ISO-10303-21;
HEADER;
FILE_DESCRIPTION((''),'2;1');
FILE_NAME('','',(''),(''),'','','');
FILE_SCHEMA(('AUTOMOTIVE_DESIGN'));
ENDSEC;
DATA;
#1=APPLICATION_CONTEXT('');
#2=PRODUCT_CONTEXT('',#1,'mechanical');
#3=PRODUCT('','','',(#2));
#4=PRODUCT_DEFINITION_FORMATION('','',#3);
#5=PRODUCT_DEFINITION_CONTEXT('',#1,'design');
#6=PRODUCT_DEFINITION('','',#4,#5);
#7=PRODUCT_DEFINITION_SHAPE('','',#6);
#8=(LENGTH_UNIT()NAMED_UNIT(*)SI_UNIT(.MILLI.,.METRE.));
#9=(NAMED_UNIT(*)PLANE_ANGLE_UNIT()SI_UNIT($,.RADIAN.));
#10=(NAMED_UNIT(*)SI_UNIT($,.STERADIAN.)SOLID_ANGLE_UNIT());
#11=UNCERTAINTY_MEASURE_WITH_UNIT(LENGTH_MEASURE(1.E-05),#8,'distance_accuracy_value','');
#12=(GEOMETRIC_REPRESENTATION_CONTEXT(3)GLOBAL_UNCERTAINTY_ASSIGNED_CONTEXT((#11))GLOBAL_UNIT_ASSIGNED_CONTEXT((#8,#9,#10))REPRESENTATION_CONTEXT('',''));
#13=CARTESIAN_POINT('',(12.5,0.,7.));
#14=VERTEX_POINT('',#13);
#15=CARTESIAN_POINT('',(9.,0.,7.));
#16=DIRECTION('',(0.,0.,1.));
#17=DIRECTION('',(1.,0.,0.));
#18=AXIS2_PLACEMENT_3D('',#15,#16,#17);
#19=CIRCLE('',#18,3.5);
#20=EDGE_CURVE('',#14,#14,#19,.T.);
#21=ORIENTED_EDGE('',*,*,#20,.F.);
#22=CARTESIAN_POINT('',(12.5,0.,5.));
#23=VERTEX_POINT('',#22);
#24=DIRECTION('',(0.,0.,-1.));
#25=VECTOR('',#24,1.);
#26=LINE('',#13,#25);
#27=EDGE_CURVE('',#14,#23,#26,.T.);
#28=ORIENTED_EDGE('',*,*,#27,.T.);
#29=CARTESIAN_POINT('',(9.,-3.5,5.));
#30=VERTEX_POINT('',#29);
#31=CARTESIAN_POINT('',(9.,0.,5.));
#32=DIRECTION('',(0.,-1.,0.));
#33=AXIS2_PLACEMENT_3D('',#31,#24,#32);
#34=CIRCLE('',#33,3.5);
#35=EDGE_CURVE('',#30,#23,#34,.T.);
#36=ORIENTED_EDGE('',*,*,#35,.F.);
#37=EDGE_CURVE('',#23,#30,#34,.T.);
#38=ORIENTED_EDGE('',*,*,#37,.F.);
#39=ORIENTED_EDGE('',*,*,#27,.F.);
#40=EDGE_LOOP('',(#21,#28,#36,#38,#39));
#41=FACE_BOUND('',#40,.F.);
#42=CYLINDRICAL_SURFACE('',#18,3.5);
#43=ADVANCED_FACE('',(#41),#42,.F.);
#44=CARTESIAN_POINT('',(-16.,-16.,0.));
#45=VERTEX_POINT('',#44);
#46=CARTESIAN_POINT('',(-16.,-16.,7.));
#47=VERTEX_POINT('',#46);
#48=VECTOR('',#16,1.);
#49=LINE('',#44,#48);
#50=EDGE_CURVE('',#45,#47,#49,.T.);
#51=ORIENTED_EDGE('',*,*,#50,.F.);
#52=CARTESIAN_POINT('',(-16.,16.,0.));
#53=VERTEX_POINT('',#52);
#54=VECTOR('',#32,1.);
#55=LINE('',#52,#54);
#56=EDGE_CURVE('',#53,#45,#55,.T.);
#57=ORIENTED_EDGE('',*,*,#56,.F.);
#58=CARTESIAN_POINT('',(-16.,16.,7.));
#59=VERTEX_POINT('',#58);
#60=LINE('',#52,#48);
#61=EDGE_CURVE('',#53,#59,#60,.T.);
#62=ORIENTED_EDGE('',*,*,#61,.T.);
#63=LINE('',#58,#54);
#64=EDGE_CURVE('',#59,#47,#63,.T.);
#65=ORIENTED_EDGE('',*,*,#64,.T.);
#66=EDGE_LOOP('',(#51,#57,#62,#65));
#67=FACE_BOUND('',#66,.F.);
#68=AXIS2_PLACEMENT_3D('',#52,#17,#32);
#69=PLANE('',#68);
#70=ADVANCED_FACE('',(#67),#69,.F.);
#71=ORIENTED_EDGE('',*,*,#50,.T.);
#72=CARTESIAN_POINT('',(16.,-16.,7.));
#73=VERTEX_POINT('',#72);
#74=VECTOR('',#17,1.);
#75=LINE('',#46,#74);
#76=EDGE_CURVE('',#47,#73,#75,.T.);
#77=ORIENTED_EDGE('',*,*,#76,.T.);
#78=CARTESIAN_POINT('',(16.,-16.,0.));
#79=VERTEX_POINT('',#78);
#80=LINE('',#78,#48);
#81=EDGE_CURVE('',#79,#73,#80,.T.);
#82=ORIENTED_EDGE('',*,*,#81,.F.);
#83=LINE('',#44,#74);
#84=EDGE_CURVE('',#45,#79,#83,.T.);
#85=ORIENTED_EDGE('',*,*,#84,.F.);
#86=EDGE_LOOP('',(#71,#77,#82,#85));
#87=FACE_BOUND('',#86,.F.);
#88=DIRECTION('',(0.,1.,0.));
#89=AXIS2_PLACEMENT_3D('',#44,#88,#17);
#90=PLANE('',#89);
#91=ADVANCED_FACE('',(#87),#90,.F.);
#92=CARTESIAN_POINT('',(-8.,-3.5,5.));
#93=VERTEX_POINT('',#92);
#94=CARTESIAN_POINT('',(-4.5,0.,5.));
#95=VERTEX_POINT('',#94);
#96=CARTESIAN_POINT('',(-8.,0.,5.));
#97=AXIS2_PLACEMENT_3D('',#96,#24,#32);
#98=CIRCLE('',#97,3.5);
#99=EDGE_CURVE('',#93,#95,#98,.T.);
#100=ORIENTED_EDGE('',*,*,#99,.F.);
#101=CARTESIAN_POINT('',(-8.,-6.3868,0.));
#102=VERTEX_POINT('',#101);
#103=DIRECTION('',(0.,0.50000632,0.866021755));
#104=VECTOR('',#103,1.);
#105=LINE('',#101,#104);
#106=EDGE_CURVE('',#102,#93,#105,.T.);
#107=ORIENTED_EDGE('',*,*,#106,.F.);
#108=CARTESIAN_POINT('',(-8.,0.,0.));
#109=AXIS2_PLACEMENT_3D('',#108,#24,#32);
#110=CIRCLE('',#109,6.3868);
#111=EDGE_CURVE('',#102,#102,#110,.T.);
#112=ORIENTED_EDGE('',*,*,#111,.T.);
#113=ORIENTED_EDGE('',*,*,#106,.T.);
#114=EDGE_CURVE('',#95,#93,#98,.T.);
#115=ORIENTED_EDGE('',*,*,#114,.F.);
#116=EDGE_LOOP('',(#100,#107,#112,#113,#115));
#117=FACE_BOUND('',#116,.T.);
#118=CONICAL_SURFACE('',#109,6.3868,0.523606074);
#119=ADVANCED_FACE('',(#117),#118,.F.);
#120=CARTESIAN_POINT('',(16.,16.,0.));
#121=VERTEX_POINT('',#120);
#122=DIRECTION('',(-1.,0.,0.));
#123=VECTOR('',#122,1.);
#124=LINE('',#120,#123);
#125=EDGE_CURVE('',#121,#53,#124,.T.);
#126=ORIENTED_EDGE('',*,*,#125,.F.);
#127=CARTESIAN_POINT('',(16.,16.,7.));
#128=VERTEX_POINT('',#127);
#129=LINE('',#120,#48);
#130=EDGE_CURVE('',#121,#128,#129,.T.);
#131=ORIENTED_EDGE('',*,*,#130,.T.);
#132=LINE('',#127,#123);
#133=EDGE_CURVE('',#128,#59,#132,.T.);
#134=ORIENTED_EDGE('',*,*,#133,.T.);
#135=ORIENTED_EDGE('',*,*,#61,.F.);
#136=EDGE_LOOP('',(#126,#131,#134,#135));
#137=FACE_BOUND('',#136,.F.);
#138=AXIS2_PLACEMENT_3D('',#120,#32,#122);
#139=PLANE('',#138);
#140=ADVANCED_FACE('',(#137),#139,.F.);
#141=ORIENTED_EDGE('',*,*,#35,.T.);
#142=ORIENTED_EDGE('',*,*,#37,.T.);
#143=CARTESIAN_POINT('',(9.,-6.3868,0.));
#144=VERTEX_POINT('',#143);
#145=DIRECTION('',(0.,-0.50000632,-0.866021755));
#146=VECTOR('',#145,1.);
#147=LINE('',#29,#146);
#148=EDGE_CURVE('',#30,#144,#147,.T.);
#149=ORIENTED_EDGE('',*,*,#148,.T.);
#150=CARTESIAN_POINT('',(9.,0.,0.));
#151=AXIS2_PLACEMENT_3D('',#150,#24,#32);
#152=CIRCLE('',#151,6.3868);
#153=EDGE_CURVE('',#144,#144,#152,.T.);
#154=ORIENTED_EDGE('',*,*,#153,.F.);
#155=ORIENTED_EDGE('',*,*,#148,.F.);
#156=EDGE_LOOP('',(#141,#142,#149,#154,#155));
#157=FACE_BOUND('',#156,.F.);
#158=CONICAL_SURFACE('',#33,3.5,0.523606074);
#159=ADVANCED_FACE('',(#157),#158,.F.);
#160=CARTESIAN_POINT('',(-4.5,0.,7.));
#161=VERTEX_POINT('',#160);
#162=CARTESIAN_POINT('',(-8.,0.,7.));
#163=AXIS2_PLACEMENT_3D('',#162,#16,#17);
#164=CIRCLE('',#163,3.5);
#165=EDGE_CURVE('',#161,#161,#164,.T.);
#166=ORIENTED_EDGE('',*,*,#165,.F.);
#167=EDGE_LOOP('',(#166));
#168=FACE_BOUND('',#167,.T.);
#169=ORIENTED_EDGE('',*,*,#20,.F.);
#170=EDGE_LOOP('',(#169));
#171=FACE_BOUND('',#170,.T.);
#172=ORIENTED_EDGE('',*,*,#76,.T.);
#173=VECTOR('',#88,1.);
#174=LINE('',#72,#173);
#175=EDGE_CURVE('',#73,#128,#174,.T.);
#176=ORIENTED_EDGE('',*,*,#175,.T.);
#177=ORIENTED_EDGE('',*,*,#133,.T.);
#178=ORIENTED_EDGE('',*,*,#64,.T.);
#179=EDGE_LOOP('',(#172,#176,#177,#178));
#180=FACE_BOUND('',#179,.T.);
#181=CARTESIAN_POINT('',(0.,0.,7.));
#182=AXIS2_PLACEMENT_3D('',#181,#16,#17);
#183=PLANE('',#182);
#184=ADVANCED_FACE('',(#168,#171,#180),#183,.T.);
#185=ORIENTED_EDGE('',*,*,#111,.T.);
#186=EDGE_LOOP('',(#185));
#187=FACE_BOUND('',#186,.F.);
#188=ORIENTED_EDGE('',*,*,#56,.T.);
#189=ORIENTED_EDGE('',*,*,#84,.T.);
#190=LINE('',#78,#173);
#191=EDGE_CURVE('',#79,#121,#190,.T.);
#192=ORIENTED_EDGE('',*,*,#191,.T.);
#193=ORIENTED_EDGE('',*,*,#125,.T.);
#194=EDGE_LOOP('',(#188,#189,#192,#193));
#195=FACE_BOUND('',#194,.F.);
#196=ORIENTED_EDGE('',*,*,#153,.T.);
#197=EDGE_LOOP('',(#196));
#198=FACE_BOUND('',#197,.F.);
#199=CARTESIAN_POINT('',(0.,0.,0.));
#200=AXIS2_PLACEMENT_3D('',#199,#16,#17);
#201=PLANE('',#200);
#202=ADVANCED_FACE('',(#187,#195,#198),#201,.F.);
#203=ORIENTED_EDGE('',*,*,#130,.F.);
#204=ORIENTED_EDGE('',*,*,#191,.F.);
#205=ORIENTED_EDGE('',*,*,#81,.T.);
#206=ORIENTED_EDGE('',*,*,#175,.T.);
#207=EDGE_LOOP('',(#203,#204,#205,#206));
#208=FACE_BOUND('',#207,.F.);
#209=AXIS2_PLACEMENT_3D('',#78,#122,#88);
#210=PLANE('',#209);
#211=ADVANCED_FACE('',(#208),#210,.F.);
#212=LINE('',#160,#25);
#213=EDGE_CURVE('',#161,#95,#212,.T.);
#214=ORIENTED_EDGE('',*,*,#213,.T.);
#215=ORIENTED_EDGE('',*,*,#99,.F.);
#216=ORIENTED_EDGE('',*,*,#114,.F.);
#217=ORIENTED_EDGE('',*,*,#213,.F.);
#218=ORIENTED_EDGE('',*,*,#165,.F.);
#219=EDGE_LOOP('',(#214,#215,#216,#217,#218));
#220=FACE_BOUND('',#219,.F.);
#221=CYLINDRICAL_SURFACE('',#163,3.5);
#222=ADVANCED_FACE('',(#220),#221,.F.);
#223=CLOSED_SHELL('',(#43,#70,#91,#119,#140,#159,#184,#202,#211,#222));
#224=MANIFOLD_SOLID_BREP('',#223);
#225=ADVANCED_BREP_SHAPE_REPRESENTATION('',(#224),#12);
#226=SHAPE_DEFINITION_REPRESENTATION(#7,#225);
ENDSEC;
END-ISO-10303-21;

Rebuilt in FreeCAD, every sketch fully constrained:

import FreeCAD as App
import Part
import Sketcher
from FreeCAD import Vector
Q = App.Units.Quantity

doc = App.newDocument("Part")
params = doc.addObject("Spreadsheet::Sheet", "Params")
for row, (alias, value) in enumerate([
    ("sketch1_width", "32 mm"),
    ("pad1_length", "7 mm"),
    ("sketch2_diameter", "7 mm"),
    ("pocket1_length", "7 mm"),
    ("sketch3_height", "5 mm"),
    ("groove_angle", "360 deg"),
    ("sketch4_height", "5 mm"),
    ("groove2_angle", "360 deg"),
], start=1):
    params.set(f"A{row}", alias)
    params.set(f"B{row}", "=" + value)
    params.setAlias(f"B{row}", alias)

body = doc.addObject("PartDesign::Body", "Body")

sketch1 = body.newObject("Sketcher::SketchObject", "Sketch")
sketch1.AttachmentSupport = (doc.getObject("XY_Plane"), [""])
sketch1.MapMode = "FlatFace"
sketch1.addGeometry(Part.LineSegment(Vector(-16, 16, 0), Vector(-16, -16, 0)), False)
sketch1.addGeometry(Part.LineSegment(Vector(-16, -16, 0), Vector(16, -16, 0)), False)
sketch1.addGeometry(Part.LineSegment(Vector(16, -16, 0), Vector(16, 16, 0)), False)
sketch1.addGeometry(Part.LineSegment(Vector(16, 16, 0), Vector(-16, 16, 0)), False)
sketch1.addConstraint(Sketcher.Constraint("Coincident", 0, 2, 1, 1))
sketch1.addConstraint(Sketcher.Constraint("Coincident", 1, 2, 2, 1))
sketch1.addConstraint(Sketcher.Constraint("Coincident", 2, 2, 3, 1))
sketch1.addConstraint(Sketcher.Constraint("Coincident", 3, 2, 0, 1))
sketch1.addConstraint(Sketcher.Constraint("Vertical", 0))
sketch1.addConstraint(Sketcher.Constraint("Horizontal", 1))
sketch1.addConstraint(Sketcher.Constraint("Vertical", 2))
sketch1.addConstraint(Sketcher.Constraint("Horizontal", 3))
sketch1.addConstraint(Sketcher.Constraint("Symmetric", 0, 2, 2, 2, -1, 1))
sketch1.addConstraint(Sketcher.Constraint("Equal", 3, 0))
sketch1.addConstraint(Sketcher.Constraint("DistanceX", 1, 1, 1, 2, 32.0))
sketch1.setExpression("Constraints[10]", "Params.sketch1_width")
pad1 = body.newObject("PartDesign::Pad", "Pad")
pad1.Profile = sketch1
pad1.setExpression("Length", "Params.pad1_length")

sketch2 = body.newObject("Sketcher::SketchObject", "Sketch001")
sketch2.AttachmentSupport = (doc.getObject("XY_Plane"), [""])
sketch2.MapMode = "FlatFace"
sketch2.AttachmentOffset = App.Placement(Vector(0, 0, 7), App.Rotation())
sketch2.addGeometry(Part.Circle(Vector(-8, 0, 0), Vector(0, 0, 1), 3.5), False)
sketch2.addGeometry(Part.Circle(Vector(9, 0, 0), Vector(0, 0, 1), 3.5), False)
sketch2.addConstraint(Sketcher.Constraint("Equal", 0, 1))
sketch2.addConstraint(Sketcher.Constraint("PointOnObject", 0, 3, -1))
sketch2.addConstraint(Sketcher.Constraint("PointOnObject", 1, 3, -1))
sketch2.addConstraint(Sketcher.Constraint("Diameter", 0, 7.0))
sketch2.addConstraint(Sketcher.Constraint("DistanceX", 0, 3, -1, 1, 8.0))
sketch2.addConstraint(Sketcher.Constraint("DistanceX", -1, 1, 1, 3, 9.0))
sketch2.setExpression("Constraints[3]", "Params.sketch2_diameter")
pocket1 = body.newObject("PartDesign::Pocket", "Pocket")
pocket1.Profile = sketch2
pocket1.setExpression("Length", "Params.pocket1_length")

sketch3 = body.newObject("Sketcher::SketchObject", "Sketch002")
sketch3.AttachmentSupport = (doc.getObject("YZ_Plane"), [""])
sketch3.MapMode = "FlatFace"
sketch3.AttachmentOffset = App.Placement(Vector(0, 0, 9), App.Rotation())
sketch3.addGeometry(Part.LineSegment(Vector(-3.5, 0, 0), Vector(-3.5, 5, 0)), False)
sketch3.addGeometry(Part.LineSegment(Vector(-3.5, 5, 0), Vector(-6.4, 0, 0)), False)
sketch3.addGeometry(Part.LineSegment(Vector(-6.4, 0, 0), Vector(-3.5, 0, 0)), False)
sketch3.addConstraint(Sketcher.Constraint("Coincident", 0, 2, 1, 1))
sketch3.addConstraint(Sketcher.Constraint("Coincident", 1, 2, 2, 1))
sketch3.addConstraint(Sketcher.Constraint("Coincident", 2, 2, 0, 1))
sketch3.addConstraint(Sketcher.Constraint("Vertical", 0))
sketch3.addConstraint(Sketcher.Constraint("Horizontal", 2))
sketch3.addConstraint(Sketcher.Constraint("PointOnObject", 1, 2, -1))
sketch3.addConstraint(Sketcher.Constraint("DistanceY", 0, 1, 0, 2, 5.0))
sketch3.addConstraint(Sketcher.Constraint("Angle", 1, Q("-120.0004 deg")))
sketch3.addConstraint(Sketcher.Constraint("DistanceX", 0, 2, -1, 1, 3.5))
sketch3.setExpression("Constraints[6]", "Params.sketch3_height")
groove = body.newObject("PartDesign::Groove", "Groove")
groove.Profile = sketch3
groove.ReferenceAxis = (sketch3, ["V_Axis"])
groove.setExpression("Angle", "Params.groove_angle")

sketch4 = body.newObject("Sketcher::SketchObject", "Sketch003")
sketch4.AttachmentSupport = (doc.getObject("YZ_Plane"), [""])
sketch4.MapMode = "FlatFace"
sketch4.AttachmentOffset = App.Placement(Vector(0, 0, -8), App.Rotation())
sketch4.addGeometry(Part.LineSegment(Vector(-3.5, 5, 0), Vector(-6.4, 0, 0)), False)
sketch4.addGeometry(Part.LineSegment(Vector(-6.4, 0, 0), Vector(-3.5, 0, 0)), False)
sketch4.addGeometry(Part.LineSegment(Vector(-3.5, 0, 0), Vector(-3.5, 5, 0)), False)
sketch4.addConstraint(Sketcher.Constraint("Coincident", 0, 2, 1, 1))
sketch4.addConstraint(Sketcher.Constraint("Coincident", 1, 2, 2, 1))
sketch4.addConstraint(Sketcher.Constraint("Coincident", 2, 2, 0, 1))
sketch4.addConstraint(Sketcher.Constraint("Horizontal", 1))
sketch4.addConstraint(Sketcher.Constraint("Vertical", 2))
sketch4.addConstraint(Sketcher.Constraint("PointOnObject", 0, 2, -1))
sketch4.addConstraint(Sketcher.Constraint("DistanceY", 2, 1, 2, 2, 5.0))
sketch4.addConstraint(Sketcher.Constraint("Angle", 0, Q("-120.0004 deg")))
sketch4.addConstraint(Sketcher.Constraint("DistanceX", 1, 2, -1, 1, 3.5))
sketch4.setExpression("Constraints[6]", "Params.sketch4_height")
groove2 = body.newObject("PartDesign::Groove", "Groove001")
groove2.Profile = sketch4
groove2.ReferenceAxis = (sketch4, ["V_Axis"])
groove2.setExpression("Angle", "Params.groove2_angle")

doc.recompute()
